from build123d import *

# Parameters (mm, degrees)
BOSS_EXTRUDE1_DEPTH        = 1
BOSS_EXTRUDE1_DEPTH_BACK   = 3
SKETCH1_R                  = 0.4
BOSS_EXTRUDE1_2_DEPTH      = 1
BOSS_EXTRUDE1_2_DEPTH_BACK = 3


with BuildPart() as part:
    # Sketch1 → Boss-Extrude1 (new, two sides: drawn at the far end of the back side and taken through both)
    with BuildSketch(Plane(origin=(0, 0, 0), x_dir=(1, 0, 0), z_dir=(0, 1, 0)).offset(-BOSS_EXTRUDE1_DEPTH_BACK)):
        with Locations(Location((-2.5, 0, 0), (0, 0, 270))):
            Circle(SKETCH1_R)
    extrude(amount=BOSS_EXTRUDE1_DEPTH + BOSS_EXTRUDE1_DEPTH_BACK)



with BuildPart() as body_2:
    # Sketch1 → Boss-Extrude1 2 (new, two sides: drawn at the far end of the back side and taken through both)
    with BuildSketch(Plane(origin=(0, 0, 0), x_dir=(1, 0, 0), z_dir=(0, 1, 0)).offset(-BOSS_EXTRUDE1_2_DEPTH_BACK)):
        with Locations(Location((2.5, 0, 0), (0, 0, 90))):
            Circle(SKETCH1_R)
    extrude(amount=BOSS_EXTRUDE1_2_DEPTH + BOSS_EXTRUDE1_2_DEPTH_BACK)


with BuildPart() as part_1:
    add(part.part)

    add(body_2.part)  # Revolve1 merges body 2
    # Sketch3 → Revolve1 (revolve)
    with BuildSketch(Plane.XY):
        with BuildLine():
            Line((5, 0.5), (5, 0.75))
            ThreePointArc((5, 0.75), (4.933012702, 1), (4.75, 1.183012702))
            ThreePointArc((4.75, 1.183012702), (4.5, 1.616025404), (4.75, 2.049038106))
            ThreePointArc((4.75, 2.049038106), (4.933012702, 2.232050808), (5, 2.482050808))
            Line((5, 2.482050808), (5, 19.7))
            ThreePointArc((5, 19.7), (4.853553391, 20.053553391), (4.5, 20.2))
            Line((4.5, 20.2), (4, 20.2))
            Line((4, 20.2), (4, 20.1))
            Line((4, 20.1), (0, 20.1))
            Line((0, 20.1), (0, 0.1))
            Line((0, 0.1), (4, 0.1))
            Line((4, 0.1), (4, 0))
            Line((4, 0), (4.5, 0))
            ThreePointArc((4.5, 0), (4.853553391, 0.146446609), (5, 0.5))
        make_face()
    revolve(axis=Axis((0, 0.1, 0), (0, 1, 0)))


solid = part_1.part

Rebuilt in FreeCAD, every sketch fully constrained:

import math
import FreeCAD as App
import Part
import Sketcher

V = App.Vector
Q = App.Units.Quantity

doc = App.newDocument("Part")
body = doc.addObject("PartDesign::Body", "Body")

# Sketch on XZ plane
sketch1 = body.newObject("Sketcher::SketchObject", "Sketch")
sketch1.AttachmentSupport = (doc.getObject("XZ_Plane"), [""])
sketch1.MapMode = "FlatFace"
sketch1.addGeometry(Part.Circle(V(-2.5, 0, 0), V(0, 0, 1), 0.4), False)
sketch1.addConstraint(Sketcher.Constraint("PointOnObject", 0, 3, -1))
sketch1.addConstraint(Sketcher.Constraint("Diameter", 0, Q("0.8 mm")))
sketch1.addConstraint(Sketcher.Constraint("DistanceX", 0, 3, -1, 1, Q("2.5 mm")))
pad1 = body.newObject("PartDesign::Pad", "Pad")
pad1.Profile = sketch1
pad1.Type = "TwoLengths"
pad1.Length = 1
pad1.Length2 = 3
pad1.Reversed = True
body2 = doc.addObject("PartDesign::Body", "Body001")

# Sketch on XZ plane
sketch2 = body2.newObject("Sketcher::SketchObject", "Sketch001")
sketch2.AttachmentSupport = (doc.getObject("XZ_Plane001"), [""])
sketch2.MapMode = "FlatFace"
sketch2.addGeometry(Part.Circle(V(2.5, 0, 0), V(0, 0, 1), 0.4), False)
sketch2.addConstraint(Sketcher.Constraint("PointOnObject", 0, 3, -1))
sketch2.addConstraint(Sketcher.Constraint("Diameter", 0, Q("0.8 mm")))
sketch2.addConstraint(Sketcher.Constraint("DistanceX", -1, 1, 0, 3, Q("2.5 mm")))
pad2 = body2.newObject("PartDesign::Pad", "Pad001")
pad2.Profile = sketch2
pad2.Type = "TwoLengths"
pad2.Length = 1
pad2.Length2 = 3
pad2.Reversed = True
body.AllowCompound = True
doc.recompute()

boolean = body.newObject("PartDesign::Boolean", "Boolean")
boolean.Type = "Fuse"
boolean.addObjects([body2])

# Sketch on XY plane
sketch3 = body.newObject("Sketcher::SketchObject", "Sketch002")
sketch3.AttachmentSupport = (doc.getObject("XY_Plane"), [""])
sketch3.MapMode = "FlatFace"
sketch3.addGeometry(Part.LineSegment(V(5, 0.5, 0), V(5, 0.75, 0)), False)
sketch3.addGeometry(Part.ArcOfCircle(Part.Circle(V(4.5, 0.75, 0), V(0, 0, 1), 0.5), math.radians(0), math.radians(60)), False)
sketch3.addGeometry(Part.ArcOfCircle(Part.Circle(V(5, 1.62, 0), V(0, 0, 1), 0.5), math.radians(120), math.radians(240)), False)
sketch3.addGeometry(Part.ArcOfCircle(Part.Circle(V(4.5, 2.48, 0), V(0, 0, 1), 0.5), math.radians(-60), math.radians(0)), False)
sketch3.addGeometry(Part.LineSegment(V(5, 2.48, 0), V(5, 19.7, 0)), False)
sketch3.addGeometry(Part.ArcOfCircle(Part.Circle(V(4.5, 19.7, 0), V(0, 0, 1), 0.5), math.radians(0), math.radians(90)), False)
sketch3.addGeometry(Part.LineSegment(V(4.5, 20.2, 0), V(4, 20.2, 0)), False)
sketch3.addGeometry(Part.LineSegment(V(4, 20.2, 0), V(4, 20.1, 0)), False)
sketch3.addGeometry(Part.LineSegment(V(4, 20.1, 0), V(0, 20.1, 0)), False)
sketch3.addGeometry(Part.LineSegment(V(0, 20.1, 0), V(0, 0.1, 0)), False)
sketch3.addGeometry(Part.LineSegment(V(0, 0.1, 0), V(4, 0.1, 0)), False)
sketch3.addGeometry(Part.LineSegment(V(4, 0.1, 0), V(4, 0, 0)), False)
sketch3.addGeometry(Part.LineSegment(V(4, 0, 0), V(4.5, 0, 0)), False)
sketch3.addGeometry(Part.ArcOfCircle(Part.Circle(V(4.5, 0.5, 0), V(0, 0, 1), 0.5), math.radians(-90), math.radians(0)), False)
sketch3.addConstraint(Sketcher.Constraint("Tangent", 0, 2, 1, 1))
sketch3.addConstraint(Sketcher.Constraint("Tangent", 1, 2, 2, 2))
sketch3.addConstraint(Sketcher.Constraint("Tangent", 2, 1, 3, 1))
sketch3.addConstraint(Sketcher.Constraint("Tangent", 3, 2, 4, 1))
sketch3.addConstraint(Sketcher.Constraint("Tangent", 4, 2, 5, 1))
sketch3.addConstraint(Sketcher.Constraint("Tangent", 5, 2, 6, 1))
sketch3.addConstraint(Sketcher.Constraint("Coincident", 6, 2, 7, 1))
sketch3.addConstraint(Sketcher.Constraint("Coincident", 7, 2, 8, 1))
sketch3.addConstraint(Sketcher.Constraint("Coincident", 8, 2, 9, 1))
sketch3.addConstraint(Sketcher.Constraint("Coincident", 9, 2, 10, 1))
sketch3.addConstraint(Sketcher.Constraint("Coincident", 10, 2, 11, 1))
sketch3.addConstraint(Sketcher.Constraint("Coincident", 11, 2, 12, 1))
sketch3.addConstraint(Sketcher.Constraint("Tangent", 12, 2, 13, 1))
sketch3.addConstraint(Sketcher.Constraint("Tangent", 13, 2, 0, 1))
sketch3.addConstraint(Sketcher.Constraint("Vertical", 0))
sketch3.addConstraint(Sketcher.Constraint("Vertical", 4))
sketch3.addConstraint(Sketcher.Constraint("Horizontal", 6))
sketch3.addConstraint(Sketcher.Constraint("Vertical", 7))
sketch3.addConstraint(Sketcher.Constraint("Horizontal", 8))
sketch3.addConstraint(Sketcher.Constraint("Vertical", 9))
sketch3.addConstraint(Sketcher.Constraint("Horizontal", 10))
sketch3.addConstraint(Sketcher.Constraint("Vertical", 11))
sketch3.addConstraint(Sketcher.Constraint("Horizontal", 12))
sketch3.addConstraint(Sketcher.Constraint("Equal", 1, 2))
sketch3.addConstraint(Sketcher.Constraint("Equal", 2, 3))
sketch3.addConstraint(Sketcher.Constraint("Equal", 3, 5))
sketch3.addConstraint(Sketcher.Constraint("Equal", 5, 13))
sketch3.addConstraint(Sketcher.Constraint("PointOnObject", 8, 2, -2))
sketch3.addConstraint(Sketcher.Constraint("PointOnObject", 11, 2, -1))
sketch3.addConstraint(Sketcher.Constraint("Vertical", 1, 3, 3, 3))
sketch3.addConstraint(Sketcher.Constraint("Vertical", 2, 3, 0, 2))
sketch3.addConstraint(Sketcher.Constraint("Vertical", 7, 2, 10, 2))
sketch3.addConstraint(Sketcher.Constraint("Equal", 7, 11))
sketch3.addConstraint(Sketcher.Constraint("Radius", 1, Q("0.5 mm")))
sketch3.addConstraint(Sketcher.Constraint("DistanceX", 8, 2, 8, 1, Q("4 mm")))
sketch3.addConstraint(Sketcher.Constraint("DistanceY", 9, 2, 9, 1, Q("20 mm")))
sketch3.addConstraint(Sketcher.Constraint("DistanceX", 6, 2, 6, 1, Q("0.5 mm")))
sketch3.addConstraint(Sketcher.Constraint("DistanceY", 7, 2, 7, 1, Q("0.1 mm")))
sketch3.addConstraint(Sketcher.Constraint("DistanceY", 0, 1, 0, 2, Q("0.25 mm")))
revolution = body.newObject("PartDesign::Revolution", "Revolution")
revolution.Profile = sketch3
revolution.ReferenceAxis = (sketch3, ["V_Axis"])
revolution.Angle = 360

doc.recompute()
